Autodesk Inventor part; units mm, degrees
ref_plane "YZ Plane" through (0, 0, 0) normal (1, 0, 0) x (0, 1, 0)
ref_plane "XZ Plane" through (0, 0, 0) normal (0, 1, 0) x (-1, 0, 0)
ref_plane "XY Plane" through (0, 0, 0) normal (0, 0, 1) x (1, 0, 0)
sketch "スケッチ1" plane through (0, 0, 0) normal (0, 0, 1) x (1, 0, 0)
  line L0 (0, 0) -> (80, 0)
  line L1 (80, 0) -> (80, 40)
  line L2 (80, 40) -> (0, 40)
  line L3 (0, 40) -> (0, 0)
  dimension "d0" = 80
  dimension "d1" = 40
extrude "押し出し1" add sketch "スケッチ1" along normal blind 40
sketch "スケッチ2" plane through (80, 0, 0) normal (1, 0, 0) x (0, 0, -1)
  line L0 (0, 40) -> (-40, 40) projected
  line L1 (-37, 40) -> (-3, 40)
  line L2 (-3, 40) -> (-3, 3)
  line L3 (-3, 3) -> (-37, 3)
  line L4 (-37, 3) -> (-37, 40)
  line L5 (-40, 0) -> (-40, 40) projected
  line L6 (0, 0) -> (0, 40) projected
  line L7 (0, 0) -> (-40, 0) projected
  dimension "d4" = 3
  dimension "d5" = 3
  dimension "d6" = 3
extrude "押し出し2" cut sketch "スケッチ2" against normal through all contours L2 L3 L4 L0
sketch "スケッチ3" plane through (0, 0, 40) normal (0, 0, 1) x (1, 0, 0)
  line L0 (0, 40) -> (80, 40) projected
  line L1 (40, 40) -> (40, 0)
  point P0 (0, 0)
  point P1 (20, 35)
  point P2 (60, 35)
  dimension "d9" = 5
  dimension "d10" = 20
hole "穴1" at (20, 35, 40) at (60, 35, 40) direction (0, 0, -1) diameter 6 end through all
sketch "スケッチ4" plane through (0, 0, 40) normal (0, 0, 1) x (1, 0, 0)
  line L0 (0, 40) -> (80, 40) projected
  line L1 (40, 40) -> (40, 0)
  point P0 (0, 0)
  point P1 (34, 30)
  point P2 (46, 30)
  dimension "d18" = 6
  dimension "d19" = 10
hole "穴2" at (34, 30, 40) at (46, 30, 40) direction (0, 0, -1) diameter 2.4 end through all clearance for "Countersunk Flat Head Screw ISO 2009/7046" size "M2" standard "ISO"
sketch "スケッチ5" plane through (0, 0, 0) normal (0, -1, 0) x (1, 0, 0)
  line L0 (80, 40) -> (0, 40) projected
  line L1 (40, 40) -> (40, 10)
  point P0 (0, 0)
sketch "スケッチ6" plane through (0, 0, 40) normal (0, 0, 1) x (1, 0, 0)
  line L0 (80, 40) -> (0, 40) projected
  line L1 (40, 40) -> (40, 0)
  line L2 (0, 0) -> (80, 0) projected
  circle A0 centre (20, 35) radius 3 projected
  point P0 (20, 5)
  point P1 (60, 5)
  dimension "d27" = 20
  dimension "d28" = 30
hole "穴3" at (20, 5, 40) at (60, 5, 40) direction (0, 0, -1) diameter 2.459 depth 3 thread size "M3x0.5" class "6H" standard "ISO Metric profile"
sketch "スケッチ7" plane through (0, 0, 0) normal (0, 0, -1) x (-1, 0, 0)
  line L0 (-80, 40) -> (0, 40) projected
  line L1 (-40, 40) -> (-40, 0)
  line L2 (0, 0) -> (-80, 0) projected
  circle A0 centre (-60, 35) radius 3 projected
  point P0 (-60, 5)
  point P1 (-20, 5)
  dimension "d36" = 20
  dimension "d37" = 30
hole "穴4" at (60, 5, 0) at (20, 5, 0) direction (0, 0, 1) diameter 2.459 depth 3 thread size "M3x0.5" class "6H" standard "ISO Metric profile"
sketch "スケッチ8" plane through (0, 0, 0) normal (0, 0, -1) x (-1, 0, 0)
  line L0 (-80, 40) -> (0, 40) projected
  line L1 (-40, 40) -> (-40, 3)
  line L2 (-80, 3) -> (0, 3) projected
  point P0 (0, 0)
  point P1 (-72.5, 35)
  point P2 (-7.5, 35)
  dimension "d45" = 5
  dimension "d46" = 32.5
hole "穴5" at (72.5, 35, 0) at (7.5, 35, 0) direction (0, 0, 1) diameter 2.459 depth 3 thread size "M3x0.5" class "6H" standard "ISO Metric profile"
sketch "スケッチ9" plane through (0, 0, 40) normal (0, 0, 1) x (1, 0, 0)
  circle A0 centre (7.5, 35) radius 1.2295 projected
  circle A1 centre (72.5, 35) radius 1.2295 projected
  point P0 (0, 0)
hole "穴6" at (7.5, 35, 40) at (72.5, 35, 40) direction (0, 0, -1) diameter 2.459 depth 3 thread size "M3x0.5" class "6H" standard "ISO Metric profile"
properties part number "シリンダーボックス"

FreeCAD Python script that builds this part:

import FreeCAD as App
import Part
import Sketcher
from FreeCAD import Vector
Q = App.Units.Quantity

doc = App.newDocument("Part")
body = doc.addObject("PartDesign::Body", "Body")

# Sketch on XY plane
sketch1 = doc.addObject("Sketcher::SketchObject", "Sketch")
body.addObject(sketch1)
sketch1.AttachmentSupport = (doc.XY_Plane, [""])
sketch1.MapMode = "FlatFace"
sketch1.addGeometry([
    Part.LineSegment(Vector(0, 40, 0), Vector(0, 0, 0)),
    Part.LineSegment(Vector(0, 0, 0), Vector(80, 0, 0)),
    Part.LineSegment(Vector(80, 0, 0), Vector(80, 40, 0)),
    Part.LineSegment(Vector(80, 40, 0), Vector(0, 40, 0)),
], False)
sketch1.addConstraint([
    Sketcher.Constraint("Coincident", 0, 2, 1, 1),
    Sketcher.Constraint("Coincident", 1, 2, 2, 1),
    Sketcher.Constraint("Coincident", 2, 2, 3, 1),
    Sketcher.Constraint("Coincident", 3, 2, 0, 1),
    Sketcher.Constraint("Vertical", 0),
    Sketcher.Constraint("Horizontal", 1),
    Sketcher.Constraint("Vertical", 2),
    Sketcher.Constraint("Horizontal", 3),
    Sketcher.Constraint("Coincident", 0, 2, -1, 1),
    Sketcher.Constraint("DistanceX", 1, 1, 1, 2, Q("80 mm")),
    Sketcher.Constraint("DistanceY", 0, 2, 0, 1, Q("40 mm")),
])
pad1 = doc.addObject("PartDesign::Pad", "Pad")
body.addObject(pad1)
pad1.Profile = sketch1
pad1.Length = 40

# Sketch on YZ plane
sketch2 = doc.addObject("Sketcher::SketchObject", "Sketch001")
body.addObject(sketch2)
sketch2.AttachmentSupport = (doc.YZ_Plane, [""])
sketch2.MapMode = "FlatFace"
sketch2.AttachmentOffset = App.Placement(Vector(0, 0, 80), App.Rotation())
sketch2.addGeometry([
    Part.LineSegment(Vector(3, 3, 0), Vector(40, 3, 0)),
    Part.LineSegment(Vector(40, 3, 0), Vector(40, 37, 0)),
    Part.LineSegment(Vector(40, 37, 0), Vector(3, 37, 0)),
    Part.LineSegment(Vector(3, 37, 0), Vector(3, 3, 0)),
], False)
sketch2.addConstraint([
    Sketcher.Constraint("Coincident", 0, 2, 1, 1),
    Sketcher.Constraint("Coincident", 1, 2, 2, 1),
    Sketcher.Constraint("Coincident", 2, 2, 3, 1),
    Sketcher.Constraint("Coincident", 3, 2, 0, 1),
    Sketcher.Constraint("Horizontal", 0),
    Sketcher.Constraint("Vertical", 1),
    Sketcher.Constraint("Horizontal", 2),
    Sketcher.Constraint("Vertical", 3),
    Sketcher.Constraint("DistanceY", -1, 1, 0, 2, Q("3 mm")),
    Sketcher.Constraint("DistanceX", -1, 1, 2, 2, Q("3 mm")),
    Sketcher.Constraint("DistanceX", 0, 1, 0, 2, Q("37 mm")),
    Sketcher.Constraint("DistanceY", 1, 1, 1, 2, Q("34 mm")),
])
pocket1 = doc.addObject("PartDesign::Pocket", "Pocket")
body.addObject(pocket1)
pocket1.Profile = sketch2
pocket1.Type = "ThroughAll"

# Sketch on XY plane
sketch3 = doc.addObject("Sketcher::SketchObject", "Sketch002")
body.addObject(sketch3)
sketch3.AttachmentSupport = (doc.XY_Plane, [""])
sketch3.MapMode = "FlatFace"
sketch3.AttachmentOffset = App.Placement(Vector(0, 0, 40), App.Rotation())
sketch3.addGeometry([
    Part.Circle(Vector(20, 35, 0), Vector(0, 0, 1), 3),
    Part.Circle(Vector(60, 35, 0), Vector(0, 0, 1), 3),
], False)
sketch3.addConstraint([
    Sketcher.Constraint("Equal", 0, 1),
    Sketcher.Constraint("Horizontal", 0, 3, 1, 3),
    Sketcher.Constraint("Diameter", 0, Q("6 mm")),
    Sketcher.Constraint("DistanceX", -1, 1, 0, 3, Q("20 mm")),
    Sketcher.Constraint("DistanceY", -1, 1, 0, 3, Q("35 mm")),
    Sketcher.Constraint("DistanceX", -1, 1, 1, 3, Q("60 mm")),
])
doc.recompute()
hole = doc.addObject("PartDesign::Hole", "Hole")
body.addObject(hole)
hole.Profile = sketch3
hole.ThreadType = "None"
hole.Diameter = 6
hole.DepthType = "ThroughAll"

# Sketch on XY plane
sketch4 = doc.addObject("Sketcher::SketchObject", "Sketch003")
body.addObject(sketch4)
sketch4.AttachmentSupport = (doc.XY_Plane, [""])
sketch4.MapMode = "FlatFace"
sketch4.AttachmentOffset = App.Placement(Vector(0, 0, 40), App.Rotation())
sketch4.addGeometry([
    Part.Circle(Vector(34, 30, 0), Vector(0, 0, 1), 1.2),
    Part.Circle(Vector(46, 30, 0), Vector(0, 0, 1), 1.2),
], False)
sketch4.addConstraint([
    Sketcher.Constraint("Equal", 0, 1),
    Sketcher.Constraint("Horizontal", 0, 3, 1, 3),
    Sketcher.Constraint("Diameter", 0, Q("2.4 mm")),
    Sketcher.Constraint("DistanceX", -1, 1, 0, 3, Q("34 mm")),
    Sketcher.Constraint("DistanceY", -1, 1, 0, 3, Q("30 mm")),
    Sketcher.Constraint("DistanceX", -1, 1, 1, 3, Q("46 mm")),
])
doc.recompute()
hole2 = doc.addObject("PartDesign::Hole", "Hole001")
body.addObject(hole2)
hole2.Profile = sketch4
hole2.ThreadType = "None"
hole2.Diameter = 2.4
hole2.DepthType = "ThroughAll"

# Sketch on XY plane
sketch5 = doc.addObject("Sketcher::SketchObject", "Sketch004")
body.addObject(sketch5)
sketch5.AttachmentSupport = (doc.XY_Plane, [""])
sketch5.MapMode = "FlatFace"
sketch5.AttachmentOffset = App.Placement(Vector(0, 0, 40), App.Rotation())
sketch5.addGeometry([
    Part.Circle(Vector(20, 5, 0), Vector(0, 0, 1), 1.2295),
    Part.Circle(Vector(60, 5, 0), Vector(0, 0, 1), 1.2295),
], False)
sketch5.addConstraint([
    Sketcher.Constraint("Equal", 0, 1),
    Sketcher.Constraint("Horizontal", 0, 3, 1, 3),
    Sketcher.Constraint("Diameter", 0, Q("2.459 mm")),
    Sketcher.Constraint("DistanceX", -1, 1, 0, 3, Q("20 mm")),
    Sketcher.Constraint("DistanceY", -1, 1, 0, 3, Q("5 mm")),
    Sketcher.Constraint("DistanceX", -1, 1, 1, 3, Q("60 mm")),
])
doc.recompute()
hole3 = doc.addObject("PartDesign::Hole", "Hole002")
body.addObject(hole3)
hole3.Profile = sketch5
hole3.ThreadType = "None"
hole3.Diameter = 2.459
hole3.DepthType = "Dimension"
hole3.Depth = 3
hole3.DrillPoint = "Flat"

# Sketch on XY plane
sketch6 = doc.addObject("Sketcher::SketchObject", "Sketch005")
body.addObject(sketch6)
sketch6.AttachmentSupport = (doc.XY_Plane, [""])
sketch6.MapMode = "FlatFace"
sketch6.addGeometry([
    Part.Circle(Vector(60, 5, 0), Vector(0, 0, 1), 1.2295),
    Part.Circle(Vector(20, 5, 0), Vector(0, 0, 1), 1.2295),
], False)
sketch6.addConstraint([
    Sketcher.Constraint("Equal", 0, 1),
    Sketcher.Constraint("Horizontal", 0, 3, 1, 3),
    Sketcher.Constraint("Diameter", 0, Q("2.459 mm")),
    Sketcher.Constraint("DistanceX", -1, 1, 0, 3, Q("60 mm")),
    Sketcher.Constraint("DistanceY", -1, 1, 0, 3, Q("5 mm")),
    Sketcher.Constraint("DistanceX", -1, 1, 1, 3, Q("20 mm")),
])
doc.recompute()
hole4 = doc.addObject("PartDesign::Hole", "Hole003")
body.addObject(hole4)
hole4.Profile = sketch6
hole4.ThreadType = "None"
hole4.Diameter = 2.459
hole4.DepthType = "Dimension"
hole4.Depth = 3
hole4.DrillPoint = "Flat"
hole4.Reversed = True

# Sketch on XY plane
sketch7 = doc.addObject("Sketcher::SketchObject", "Sketch006")
body.addObject(sketch7)
sketch7.AttachmentSupport = (doc.XY_Plane, [""])
sketch7.MapMode = "FlatFace"
sketch7.addGeometry([
    Part.Circle(Vector(72.5, 35, 0), Vector(0, 0, 1), 1.2295),
    Part.Circle(Vector(7.5, 35, 0), Vector(0, 0, 1), 1.2295),
], False)
sketch7.addConstraint([
    Sketcher.Constraint("Equal", 0, 1),
    Sketcher.Constraint("Horizontal", 0, 3, 1, 3),
    Sketcher.Constraint("Diameter", 0, Q("2.459 mm")),
    Sketcher.Constraint("DistanceY", -1, 1, 0, 3, Q("35 mm")),
    Sketcher.Constraint("DistanceX", 1, 3, 0, 3, Q("65 mm")),
    Sketcher.Constraint("DistanceX", -1, 1, 0, 3, Q("72.5 mm")),
])
doc.recompute()
hole5 = doc.addObject("PartDesign::Hole", "Hole004")
body.addObject(hole5)
hole5.Profile = sketch7
hole5.ThreadType = "None"
hole5.Diameter = 2.459
hole5.DepthType = "Dimension"
hole5.Depth = 3
hole5.DrillPoint = "Flat"
hole5.Reversed = True

# Sketch on XY plane
sketch8 = doc.addObject("Sketcher::SketchObject", "Sketch007")
body.addObject(sketch8)
sketch8.AttachmentSupport = (doc.XY_Plane, [""])
sketch8.MapMode = "FlatFace"
sketch8.AttachmentOffset = App.Placement(Vector(0, 0, 40), App.Rotation())
sketch8.addGeometry([
    Part.Circle(Vector(7.5, 35, 0), Vector(0, 0, 1), 1.2295),
    Part.Circle(Vector(72.5, 35, 0), Vector(0, 0, 1), 1.2295),
], False)
sketch8.addConstraint([
    Sketcher.Constraint("Equal", 0, 1),
    Sketcher.Constraint("Horizontal", 0, 3, 1, 3),
    Sketcher.Constraint("Diameter", 0, Q("2.459 mm")),
    Sketcher.Constraint("DistanceY", -1, 1, 0, 3, Q("35 mm")),
    Sketcher.Constraint("DistanceX", 0, 3, 1, 3, Q("65 mm")),
    Sketcher.Constraint("DistanceX", -1, 1, 0, 3, Q("7.5 mm")),
])
doc.recompute()
hole6 = doc.addObject("PartDesign::Hole", "Hole005")
body.addObject(hole6)
hole6.Profile = sketch8
hole6.ThreadType = "None"
hole6.Diameter = 2.459
hole6.DepthType = "Dimension"
hole6.Depth = 3
hole6.DrillPoint = "Flat"

doc.recompute()
